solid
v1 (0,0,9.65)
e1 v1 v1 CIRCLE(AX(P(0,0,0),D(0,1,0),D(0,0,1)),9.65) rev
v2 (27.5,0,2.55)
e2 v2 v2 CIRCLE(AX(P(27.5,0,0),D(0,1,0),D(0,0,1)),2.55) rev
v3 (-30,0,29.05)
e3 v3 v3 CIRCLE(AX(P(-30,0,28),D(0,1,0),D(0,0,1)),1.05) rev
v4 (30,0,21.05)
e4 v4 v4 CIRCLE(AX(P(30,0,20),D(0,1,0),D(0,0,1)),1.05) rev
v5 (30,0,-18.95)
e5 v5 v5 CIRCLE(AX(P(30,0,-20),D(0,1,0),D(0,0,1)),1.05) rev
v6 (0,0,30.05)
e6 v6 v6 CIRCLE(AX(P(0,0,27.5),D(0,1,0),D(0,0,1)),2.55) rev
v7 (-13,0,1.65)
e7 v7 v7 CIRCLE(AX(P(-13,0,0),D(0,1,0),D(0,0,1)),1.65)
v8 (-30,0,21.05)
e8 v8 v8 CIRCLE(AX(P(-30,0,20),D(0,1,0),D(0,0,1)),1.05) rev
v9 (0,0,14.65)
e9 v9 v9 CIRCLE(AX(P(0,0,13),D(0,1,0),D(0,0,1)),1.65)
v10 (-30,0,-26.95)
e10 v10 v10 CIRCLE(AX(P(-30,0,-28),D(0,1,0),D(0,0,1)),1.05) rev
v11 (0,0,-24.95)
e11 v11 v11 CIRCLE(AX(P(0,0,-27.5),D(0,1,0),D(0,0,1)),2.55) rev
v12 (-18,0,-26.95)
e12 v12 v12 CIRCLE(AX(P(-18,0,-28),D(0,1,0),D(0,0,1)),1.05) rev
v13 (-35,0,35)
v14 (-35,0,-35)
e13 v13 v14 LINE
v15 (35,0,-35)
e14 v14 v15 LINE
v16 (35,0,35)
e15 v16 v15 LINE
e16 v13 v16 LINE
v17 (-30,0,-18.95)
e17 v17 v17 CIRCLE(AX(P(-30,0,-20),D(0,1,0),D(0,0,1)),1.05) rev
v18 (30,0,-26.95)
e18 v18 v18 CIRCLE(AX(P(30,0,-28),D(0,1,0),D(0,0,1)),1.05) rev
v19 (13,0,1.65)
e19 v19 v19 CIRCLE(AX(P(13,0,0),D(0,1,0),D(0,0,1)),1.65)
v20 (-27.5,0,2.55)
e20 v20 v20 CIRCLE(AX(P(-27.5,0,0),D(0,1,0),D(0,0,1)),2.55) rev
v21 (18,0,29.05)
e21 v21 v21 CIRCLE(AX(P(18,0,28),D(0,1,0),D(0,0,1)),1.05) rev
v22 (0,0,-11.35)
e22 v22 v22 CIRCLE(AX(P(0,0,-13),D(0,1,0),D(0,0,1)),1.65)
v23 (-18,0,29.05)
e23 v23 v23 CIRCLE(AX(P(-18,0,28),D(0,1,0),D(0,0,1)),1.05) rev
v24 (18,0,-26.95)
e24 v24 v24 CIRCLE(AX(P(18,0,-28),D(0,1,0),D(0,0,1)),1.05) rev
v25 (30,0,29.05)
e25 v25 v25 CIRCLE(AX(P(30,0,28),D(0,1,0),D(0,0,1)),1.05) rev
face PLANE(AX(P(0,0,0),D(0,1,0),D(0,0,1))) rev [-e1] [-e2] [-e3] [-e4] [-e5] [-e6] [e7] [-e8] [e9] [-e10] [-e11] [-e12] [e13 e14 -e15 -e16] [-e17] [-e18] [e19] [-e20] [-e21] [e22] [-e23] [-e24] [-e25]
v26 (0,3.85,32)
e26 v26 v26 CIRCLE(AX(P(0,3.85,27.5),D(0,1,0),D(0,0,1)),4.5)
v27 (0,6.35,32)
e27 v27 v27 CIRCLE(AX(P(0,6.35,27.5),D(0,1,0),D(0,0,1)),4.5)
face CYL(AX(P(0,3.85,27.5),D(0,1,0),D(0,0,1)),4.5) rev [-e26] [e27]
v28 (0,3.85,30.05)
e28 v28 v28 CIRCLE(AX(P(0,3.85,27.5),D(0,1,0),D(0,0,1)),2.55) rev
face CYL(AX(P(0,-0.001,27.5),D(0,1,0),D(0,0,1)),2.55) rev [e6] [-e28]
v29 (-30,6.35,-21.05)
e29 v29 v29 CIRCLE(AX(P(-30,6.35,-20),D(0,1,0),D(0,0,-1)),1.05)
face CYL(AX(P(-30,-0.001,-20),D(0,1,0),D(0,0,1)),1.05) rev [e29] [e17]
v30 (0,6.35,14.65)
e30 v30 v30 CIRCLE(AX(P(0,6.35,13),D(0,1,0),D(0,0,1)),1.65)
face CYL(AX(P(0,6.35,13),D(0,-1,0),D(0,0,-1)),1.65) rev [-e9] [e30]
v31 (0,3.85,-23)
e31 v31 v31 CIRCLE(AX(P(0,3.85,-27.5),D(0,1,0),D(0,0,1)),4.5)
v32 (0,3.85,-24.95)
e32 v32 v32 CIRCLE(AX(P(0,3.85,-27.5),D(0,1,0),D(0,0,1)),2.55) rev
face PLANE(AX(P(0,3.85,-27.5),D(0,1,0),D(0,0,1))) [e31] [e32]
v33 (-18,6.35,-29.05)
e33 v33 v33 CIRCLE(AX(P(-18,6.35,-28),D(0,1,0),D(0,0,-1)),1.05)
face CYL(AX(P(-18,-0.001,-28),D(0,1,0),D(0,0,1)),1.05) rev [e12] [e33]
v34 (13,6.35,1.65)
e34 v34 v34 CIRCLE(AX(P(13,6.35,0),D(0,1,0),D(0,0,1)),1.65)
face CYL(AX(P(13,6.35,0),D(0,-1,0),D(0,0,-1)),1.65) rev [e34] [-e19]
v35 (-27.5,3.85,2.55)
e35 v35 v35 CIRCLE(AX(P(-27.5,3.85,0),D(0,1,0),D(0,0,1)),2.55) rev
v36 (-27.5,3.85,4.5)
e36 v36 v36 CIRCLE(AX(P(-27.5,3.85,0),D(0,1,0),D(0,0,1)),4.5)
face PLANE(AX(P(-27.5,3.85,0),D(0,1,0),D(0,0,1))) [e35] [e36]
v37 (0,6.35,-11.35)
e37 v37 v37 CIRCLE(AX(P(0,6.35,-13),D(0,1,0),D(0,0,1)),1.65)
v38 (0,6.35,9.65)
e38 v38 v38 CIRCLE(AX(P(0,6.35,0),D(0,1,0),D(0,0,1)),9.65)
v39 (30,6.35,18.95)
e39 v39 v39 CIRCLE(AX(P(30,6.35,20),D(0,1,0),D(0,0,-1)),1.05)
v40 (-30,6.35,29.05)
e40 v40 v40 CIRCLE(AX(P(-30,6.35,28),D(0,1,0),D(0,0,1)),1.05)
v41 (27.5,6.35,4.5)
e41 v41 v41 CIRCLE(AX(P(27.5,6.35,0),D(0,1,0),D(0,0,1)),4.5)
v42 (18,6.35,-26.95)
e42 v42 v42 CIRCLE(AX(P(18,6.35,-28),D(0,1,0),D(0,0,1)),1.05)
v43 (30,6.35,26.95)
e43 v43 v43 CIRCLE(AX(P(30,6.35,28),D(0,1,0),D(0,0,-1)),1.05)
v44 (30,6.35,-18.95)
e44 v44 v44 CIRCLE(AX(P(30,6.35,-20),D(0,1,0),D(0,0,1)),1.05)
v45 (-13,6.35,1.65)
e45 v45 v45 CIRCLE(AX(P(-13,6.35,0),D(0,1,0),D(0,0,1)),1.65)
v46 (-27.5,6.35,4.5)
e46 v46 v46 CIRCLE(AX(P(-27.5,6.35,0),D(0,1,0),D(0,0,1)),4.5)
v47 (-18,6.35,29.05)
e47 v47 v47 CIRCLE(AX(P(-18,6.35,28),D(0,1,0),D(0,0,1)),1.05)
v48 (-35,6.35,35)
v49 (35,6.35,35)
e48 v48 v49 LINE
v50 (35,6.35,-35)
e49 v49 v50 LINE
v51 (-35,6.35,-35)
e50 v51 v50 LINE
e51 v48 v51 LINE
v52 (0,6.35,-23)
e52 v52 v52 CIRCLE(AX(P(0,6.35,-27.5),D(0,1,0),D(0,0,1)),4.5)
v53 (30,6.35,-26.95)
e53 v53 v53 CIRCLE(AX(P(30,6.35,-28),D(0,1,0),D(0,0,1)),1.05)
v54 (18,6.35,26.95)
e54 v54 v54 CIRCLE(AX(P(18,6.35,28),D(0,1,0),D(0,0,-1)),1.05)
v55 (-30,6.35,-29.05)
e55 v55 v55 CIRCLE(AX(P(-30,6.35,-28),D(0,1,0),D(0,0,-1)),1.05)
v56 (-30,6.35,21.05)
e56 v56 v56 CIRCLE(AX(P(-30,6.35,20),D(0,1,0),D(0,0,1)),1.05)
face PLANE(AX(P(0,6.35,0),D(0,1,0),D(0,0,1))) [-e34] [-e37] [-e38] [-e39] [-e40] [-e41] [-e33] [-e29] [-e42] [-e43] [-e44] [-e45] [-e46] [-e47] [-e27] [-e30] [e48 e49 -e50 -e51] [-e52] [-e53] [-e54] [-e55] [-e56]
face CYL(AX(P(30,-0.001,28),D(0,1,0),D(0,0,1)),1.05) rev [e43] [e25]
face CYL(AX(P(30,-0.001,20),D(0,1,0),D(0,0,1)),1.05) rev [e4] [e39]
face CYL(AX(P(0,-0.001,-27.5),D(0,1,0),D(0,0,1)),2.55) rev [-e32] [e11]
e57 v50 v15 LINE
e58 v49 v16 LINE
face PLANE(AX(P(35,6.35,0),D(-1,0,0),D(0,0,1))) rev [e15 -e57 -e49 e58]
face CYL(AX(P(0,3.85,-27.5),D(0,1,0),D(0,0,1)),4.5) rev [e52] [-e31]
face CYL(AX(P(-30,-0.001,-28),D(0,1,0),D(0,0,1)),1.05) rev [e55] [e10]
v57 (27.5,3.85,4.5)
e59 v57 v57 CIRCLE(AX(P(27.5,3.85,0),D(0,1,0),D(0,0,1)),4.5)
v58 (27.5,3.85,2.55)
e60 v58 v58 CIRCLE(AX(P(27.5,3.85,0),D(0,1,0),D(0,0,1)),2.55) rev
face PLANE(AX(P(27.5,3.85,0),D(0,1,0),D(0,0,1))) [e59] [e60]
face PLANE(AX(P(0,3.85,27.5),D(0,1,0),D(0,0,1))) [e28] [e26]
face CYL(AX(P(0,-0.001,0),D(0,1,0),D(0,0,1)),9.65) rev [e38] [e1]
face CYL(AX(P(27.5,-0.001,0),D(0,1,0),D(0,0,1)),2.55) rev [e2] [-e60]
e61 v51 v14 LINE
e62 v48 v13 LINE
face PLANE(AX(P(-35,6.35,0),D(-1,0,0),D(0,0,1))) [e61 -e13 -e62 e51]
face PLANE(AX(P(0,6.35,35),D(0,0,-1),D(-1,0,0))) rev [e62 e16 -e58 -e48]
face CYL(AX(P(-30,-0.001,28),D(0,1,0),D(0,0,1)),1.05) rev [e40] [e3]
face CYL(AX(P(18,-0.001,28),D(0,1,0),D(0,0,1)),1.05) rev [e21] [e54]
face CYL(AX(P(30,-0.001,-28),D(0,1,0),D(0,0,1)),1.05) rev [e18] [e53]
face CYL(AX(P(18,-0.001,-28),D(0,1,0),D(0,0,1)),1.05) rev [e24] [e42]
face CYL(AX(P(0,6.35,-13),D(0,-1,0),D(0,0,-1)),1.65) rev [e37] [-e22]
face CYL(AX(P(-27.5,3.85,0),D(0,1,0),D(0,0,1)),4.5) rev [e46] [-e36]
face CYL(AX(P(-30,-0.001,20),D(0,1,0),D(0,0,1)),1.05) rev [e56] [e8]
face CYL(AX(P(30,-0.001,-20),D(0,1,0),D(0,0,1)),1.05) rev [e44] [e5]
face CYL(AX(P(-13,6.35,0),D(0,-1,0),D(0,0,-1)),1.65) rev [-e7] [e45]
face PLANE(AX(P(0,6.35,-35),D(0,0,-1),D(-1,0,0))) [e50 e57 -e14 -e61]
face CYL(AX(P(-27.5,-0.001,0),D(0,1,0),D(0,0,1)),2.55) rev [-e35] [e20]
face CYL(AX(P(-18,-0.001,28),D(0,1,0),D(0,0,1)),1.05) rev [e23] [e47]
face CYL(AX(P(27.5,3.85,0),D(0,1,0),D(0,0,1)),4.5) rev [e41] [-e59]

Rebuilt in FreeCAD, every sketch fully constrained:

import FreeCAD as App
import Part
import Sketcher
Q = App.Units.Quantity

doc = App.newDocument("Part")
body = doc.addObject("PartDesign::Body", "Body")

sketch1 = body.newObject("Sketcher::SketchObject", "Sketch")
sketch1.AttachmentSupport = (doc.getObject("XZ_Plane"), [""])
sketch1.MapMode = "FlatFace"
sketch1.addGeometry(Part.LineSegment(App.Vector(-35, -35, 0), App.Vector(-35, 35, 0)), False)
sketch1.addGeometry(Part.LineSegment(App.Vector(-35, 35, 0), App.Vector(35, 35, 0)), False)
sketch1.addGeometry(Part.LineSegment(App.Vector(35, 35, 0), App.Vector(35, -35, 0)), False)
sketch1.addGeometry(Part.LineSegment(App.Vector(35, -35, 0), App.Vector(-35, -35, 0)), False)
sketch1.addGeometry(Part.Circle(App.Vector(0, 13, 0), App.Vector(0, 0, 1), 1.6), False)
sketch1.addGeometry(Part.Circle(App.Vector(-13, 0, 0), App.Vector(0, 0, 1), 1.6), False)
sketch1.addGeometry(Part.Circle(App.Vector(13, 0, 0), App.Vector(0, 0, 1), 1.6), False)
sketch1.addGeometry(Part.Circle(App.Vector(0, -13, 0), App.Vector(0, 0, 1), 1.6), False)
sketch1.addConstraint(Sketcher.Constraint("Coincident", 0, 2, 1, 1))
sketch1.addConstraint(Sketcher.Constraint("Coincident", 1, 2, 2, 1))
sketch1.addConstraint(Sketcher.Constraint("Coincident", 2, 2, 3, 1))
sketch1.addConstraint(Sketcher.Constraint("Coincident", 3, 2, 0, 1))
sketch1.addConstraint(Sketcher.Constraint("Vertical", 0))
sketch1.addConstraint(Sketcher.Constraint("Horizontal", 1))
sketch1.addConstraint(Sketcher.Constraint("Vertical", 2))
sketch1.addConstraint(Sketcher.Constraint("Horizontal", 3))
sketch1.addConstraint(Sketcher.Constraint("Equal", 4, 5))
sketch1.addConstraint(Sketcher.Constraint("Equal", 5, 6))
sketch1.addConstraint(Sketcher.Constraint("Equal", 6, 7))
sketch1.addConstraint(Sketcher.Constraint("Symmetric", 5, 3, 6, 3, -1, 1))
sketch1.addConstraint(Sketcher.Constraint("Symmetric", 4, 3, 7, 3, -1, 1))
sketch1.addConstraint(Sketcher.Constraint("Symmetric", 0, 2, 2, 2, -1, 1))
sketch1.addConstraint(Sketcher.Constraint("PointOnObject", 4, 3, -2))
sketch1.addConstraint(Sketcher.Constraint("PointOnObject", 5, 3, -1))
sketch1.addConstraint(Sketcher.Constraint("Equal", 3, 0))
sketch1.addConstraint(Sketcher.Constraint("Diameter", 4, Q("3.3 mm")))
sketch1.addConstraint(Sketcher.Constraint("DistanceX", 1, 1, 1, 2, Q("70 mm")))
sketch1.addConstraint(Sketcher.Constraint("DistanceY", -1, 1, 4, 3, Q("13 mm")))
sketch1.addConstraint(Sketcher.Constraint("DistanceX", 5, 3, -1, 1, Q("13 mm")))
pad1 = body.newObject("PartDesign::Pad", "Pad")
pad1.Profile = sketch1
pad1.Length = 6.35
pad1.Reversed = True

sketch2 = body.newObject("Sketcher::SketchObject", "Sketch001")
sketch2.AttachmentSupport = (doc.getObject("XZ_Plane"), [""])
sketch2.MapMode = "FlatFace"
sketch2.AttachmentOffset = App.Placement(App.Vector(0, 0, -6.35), App.Rotation())
sketch2.addGeometry(Part.Circle(App.Vector(18, -28, 0), App.Vector(0, 0, 1), 1.1), False)
sketch2.addConstraint(Sketcher.Constraint("Diameter", 0, Q("2.1 mm")))
sketch2.addConstraint(Sketcher.Constraint("DistanceX", -1, 1, 0, 3, Q("18 mm")))
sketch2.addConstraint(Sketcher.Constraint("DistanceY", 0, 3, -1, 1, Q("28 mm")))
pocket1 = body.newObject("PartDesign::Pocket", "Pocket")
pocket1.Profile = sketch2
pocket1.Type = "UpToFirst"
pocket1.Reversed = True

sketch3 = body.newObject("Sketcher::SketchObject", "Sketch002")
sketch3.AttachmentSupport = (doc.getObject("XZ_Plane"), [""])
sketch3.MapMode = "FlatFace"
sketch3.AttachmentOffset = App.Placement(App.Vector(0, 0, -6.35), App.Rotation())
sketch3.addGeometry(Part.Circle(App.Vector(30, -28, 0), App.Vector(0, 0, 1), 1.1), False)
sketch3.addConstraint(Sketcher.Constraint("Diameter", 0, Q("2.1 mm")))
sketch3.addConstraint(Sketcher.Constraint("DistanceX", -1, 1, 0, 3, Q("30 mm")))
sketch3.addConstraint(Sketcher.Constraint("DistanceY", 0, 3, -1, 1, Q("28 mm")))
pocket2 = body.newObject("PartDesign::Pocket", "Pocket001")
pocket2.Profile = sketch3
pocket2.Type = "UpToFirst"
pocket2.Reversed = True

sketch4 = body.newObject("Sketcher::SketchObject", "Sketch003")
sketch4.AttachmentSupport = (doc.getObject("XZ_Plane"), [""])
sketch4.MapMode = "FlatFace"
sketch4.AttachmentOffset = App.Placement(App.Vector(0, 0, -6.35), App.Rotation())
sketch4.addGeometry(Part.Circle(App.Vector(30, -20, 0), App.Vector(0, 0, 1), 1.1), False)
sketch4.addConstraint(Sketcher.Constraint("Diameter", 0, Q("2.1 mm")))
sketch4.addConstraint(Sketcher.Constraint("DistanceX", -1, 1, 0, 3, Q("30 mm")))
sketch4.addConstraint(Sketcher.Constraint("DistanceY", 0, 3, -1, 1, Q("20 mm")))
pocket3 = body.newObject("PartDesign::Pocket", "Pocket002")
pocket3.Profile = sketch4
pocket3.Type = "UpToFirst"
pocket3.Reversed = True

sketch5 = body.newObject("Sketcher::SketchObject", "Sketch004")
sketch5.AttachmentSupport = (doc.getObject("XZ_Plane"), [""])
sketch5.MapMode = "FlatFace"
sketch5.AttachmentOffset = App.Placement(App.Vector(0, 0, -6.35), App.Rotation())
sketch5.addGeometry(Part.Circle(App.Vector(-30, -20, 0), App.Vector(0, 0, 1), 1.1), False)
sketch5.addConstraint(Sketcher.Constraint("Diameter", 0, Q("2.1 mm")))
sketch5.addConstraint(Sketcher.Constraint("DistanceX", 0, 3, -1, 1, Q("30 mm")))
sketch5.addConstraint(Sketcher.Constraint("DistanceY", 0, 3, -1, 1, Q("20 mm")))
pocket4 = body.newObject("PartDesign::Pocket", "Pocket003")
pocket4.Profile = sketch5
pocket4.Type = "UpToFirst"
pocket4.Reversed = True

sketch6 = body.newObject("Sketcher::SketchObject", "Sketch005")
sketch6.AttachmentSupport = (doc.getObject("XZ_Plane"), [""])
sketch6.MapMode = "FlatFace"
sketch6.AttachmentOffset = App.Placement(App.Vector(0, 0, -6.35), App.Rotation())
sketch6.addGeometry(Part.Circle(App.Vector(-30, -28, 0), App.Vector(0, 0, 1), 1.1), False)
sketch6.addConstraint(Sketcher.Constraint("Diameter", 0, Q("2.1 mm")))
sketch6.addConstraint(Sketcher.Constraint("DistanceX", 0, 3, -1, 1, Q("30 mm")))
sketch6.addConstraint(Sketcher.Constraint("DistanceY", 0, 3, -1, 1, Q("28 mm")))
pocket5 = body.newObject("PartDesign::Pocket", "Pocket004")
pocket5.Profile = sketch6
pocket5.Type = "UpToFirst"
pocket5.Reversed = True

sketch7 = body.newObject("Sketcher::SketchObject", "Sketch006")
sketch7.AttachmentSupport = (doc.getObject("XZ_Plane"), [""])
sketch7.MapMode = "FlatFace"
sketch7.AttachmentOffset = App.Placement(App.Vector(0, 0, -6.35), App.Rotation())
sketch7.addGeometry(Part.Circle(App.Vector(-18, -28, 0), App.Vector(0, 0, 1), 1.1), False)
sketch7.addConstraint(Sketcher.Constraint("Diameter", 0, Q("2.1 mm")))
sketch7.addConstraint(Sketcher.Constraint("DistanceX", 0, 3, -1, 1, Q("18 mm")))
sketch7.addConstraint(Sketcher.Constraint("DistanceY", 0, 3, -1, 1, Q("28 mm")))
pocket6 = body.newObject("PartDesign::Pocket", "Pocket005")
pocket6.Profile = sketch7
pocket6.Type = "UpToFirst"
pocket6.Reversed = True

sketch8 = body.newObject("Sketcher::SketchObject", "Sketch007")
sketch8.AttachmentSupport = (doc.getObject("XZ_Plane"), [""])
sketch8.MapMode = "FlatFace"
sketch8.AttachmentOffset = App.Placement(App.Vector(0, 0, -6.35), App.Rotation())
sketch8.addGeometry(Part.Circle(App.Vector(30, 20, 0), App.Vector(0, 0, 1), 1.1), False)
sketch8.addConstraint(Sketcher.Constraint("Diameter", 0, Q("2.1 mm")))
sketch8.addConstraint(Sketcher.Constraint("DistanceX", -1, 1, 0, 3, Q("30 mm")))
sketch8.addConstraint(Sketcher.Constraint("DistanceY", -1, 1, 0, 3, Q("20 mm")))
pocket7 = body.newObject("PartDesign::Pocket", "Pocket006")
pocket7.Profile = sketch8
pocket7.Type = "UpToFirst"
pocket7.Reversed = True

sketch9 = body.newObject("Sketcher::SketchObject", "Sketch008")
sketch9.AttachmentSupport = (doc.getObject("XZ_Plane"), [""])
sketch9.MapMode = "FlatFace"
sketch9.AttachmentOffset = App.Placement(App.Vector(0, 0, -6.35), App.Rotation())
sketch9.addGeometry(Part.Circle(App.Vector(30, 28, 0), App.Vector(0, 0, 1), 1.1), False)
sketch9.addConstraint(Sketcher.Constraint("Diameter", 0, Q("2.1 mm")))
sketch9.addConstraint(Sketcher.Constraint("DistanceX", -1, 1, 0, 3, Q("30 mm")))
sketch9.addConstraint(Sketcher.Constraint("DistanceY", -1, 1, 0, 3, Q("28 mm")))
pocket8 = body.newObject("PartDesign::Pocket", "Pocket007")
pocket8.Profile = sketch9
pocket8.Type = "UpToFirst"
pocket8.Reversed = True

sketch10 = body.newObject("Sketcher::SketchObject", "Sketch009")
sketch10.AttachmentSupport = (doc.getObject("XZ_Plane"), [""])
sketch10.MapMode = "FlatFace"
sketch10.AttachmentOffset = App.Placement(App.Vector(0, 0, -6.35), App.Rotation())
sketch10.addGeometry(Part.Circle(App.Vector(18, 28, 0), App.Vector(0, 0, 1), 1.1), False)
sketch10.addConstraint(Sketcher.Constraint("Diameter", 0, Q("2.1 mm")))
sketch10.addConstraint(Sketcher.Constraint("DistanceX", -1, 1, 0, 3, Q("18 mm")))
sketch10.addConstraint(Sketcher.Constraint("DistanceY", -1, 1, 0, 3, Q("28 mm")))
pocket9 = body.newObject("PartDesign::Pocket", "Pocket008")
pocket9.Profile = sketch10
pocket9.Type = "UpToFirst"
pocket9.Reversed = True

sketch11 = body.newObject("Sketcher::SketchObject", "Sketch010")
sketch11.AttachmentSupport = (doc.getObject("XZ_Plane"), [""])
sketch11.MapMode = "FlatFace"
sketch11.AttachmentOffset = App.Placement(App.Vector(0, 0, -6.35), App.Rotation())
sketch11.addGeometry(Part.Circle(App.Vector(-18, 28, 0), App.Vector(0, 0, 1), 1.1), False)
sketch11.addConstraint(Sketcher.Constraint("Diameter", 0, Q("2.1 mm")))
sketch11.addConstraint(Sketcher.Constraint("DistanceX", 0, 3, -1, 1, Q("18 mm")))
sketch11.addConstraint(Sketcher.Constraint("DistanceY", -1, 1, 0, 3, Q("28 mm")))
pocket10 = body.newObject("PartDesign::Pocket", "Pocket009")
pocket10.Profile = sketch11
pocket10.Type = "UpToFirst"
pocket10.Reversed = True

sketch12 = body.newObject("Sketcher::SketchObject", "Sketch011")
sketch12.AttachmentSupport = (doc.getObject("XZ_Plane"), [""])
sketch12.MapMode = "FlatFace"
sketch12.AttachmentOffset = App.Placement(App.Vector(0, 0, -6.35), App.Rotation())
sketch12.addGeometry(Part.Circle(App.Vector(-30, 20, 0), App.Vector(0, 0, 1), 1.1), False)
sketch12.addConstraint(Sketcher.Constraint("Diameter", 0, Q("2.1 mm")))
sketch12.addConstraint(Sketcher.Constraint("DistanceX", 0, 3, -1, 1, Q("30 mm")))
sketch12.addConstraint(Sketcher.Constraint("DistanceY", -1, 1, 0, 3, Q("20 mm")))
pocket11 = body.newObject("PartDesign::Pocket", "Pocket010")
pocket11.Profile = sketch12
pocket11.Type = "UpToFirst"
pocket11.Reversed = True

sketch13 = body.newObject("Sketcher::SketchObject", "Sketch012")
sketch13.AttachmentSupport = (doc.getObject("XZ_Plane"), [""])
sketch13.MapMode = "FlatFace"
sketch13.AttachmentOffset = App.Placement(App.Vector(0, 0, -6.35), App.Rotation())
sketch13.addGeometry(Part.Circle(App.Vector(-30, 28, 0), App.Vector(0, 0, 1), 1.1), False)
sketch13.addConstraint(Sketcher.Constraint("Diameter", 0, Q("2.1 mm")))
sketch13.addConstraint(Sketcher.Constraint("DistanceX", 0, 3, -1, 1, Q("30 mm")))
sketch13.addConstraint(Sketcher.Constraint("DistanceY", -1, 1, 0, 3, Q("28 mm")))
pocket12 = body.newObject("PartDesign::Pocket", "Pocket011")
pocket12.Profile = sketch13
pocket12.Type = "UpToFirst"
pocket12.Reversed = True

sketch14 = body.newObject("Sketcher::SketchObject", "Sketch013")
sketch14.AttachmentSupport = (doc.getObject("XZ_Plane"), [""])
sketch14.MapMode = "FlatFace"
sketch14.AttachmentOffset = App.Placement(App.Vector(0, 0, -6.35), App.Rotation())
sketch14.addGeometry(Part.Circle(App.Vector(0, 0, 0), App.Vector(0, 0, 1), 10), False)
sketch14.addConstraint(Sketcher.Constraint("Coincident", 0, 3, -1, 1))
sketch14.addConstraint(Sketcher.Constraint("Diameter", 0, Q("19.3 mm")))
pocket13 = body.newObject("PartDesign::Pocket", "Pocket012")
pocket13.Profile = sketch14
pocket13.Type = "UpToFirst"
pocket13.Reversed = True

sketch15 = body.newObject("Sketcher::SketchObject", "Sketch014")
sketch15.AttachmentSupport = (doc.getObject("XZ_Plane"), [""])
sketch15.MapMode = "FlatFace"
sketch15.AttachmentOffset = App.Placement(App.Vector(0, 0, -6.35), App.Rotation())
sketch15.addGeometry(Part.Circle(App.Vector(0, -27.5, 0), App.Vector(0, 0, 1), 2.5), False)
sketch15.addConstraint(Sketcher.Constraint("PointOnObject", 0, 3, -2))
sketch15.addConstraint(Sketcher.Constraint("Diameter", 0, Q("5.1 mm")))
sketch15.addConstraint(Sketcher.Constraint("DistanceY", 0, 3, -1, 1, Q("27.5 mm")))
pocket14 = body.newObject("PartDesign::Pocket", "Pocket013")
pocket14.Profile = sketch15
pocket14.Type = "UpToFirst"
pocket14.Reversed = True

sketch16 = body.newObject("Sketcher::SketchObject", "Sketch015")
sketch16.AttachmentSupport = (doc.getObject("XZ_Plane"), [""])
sketch16.MapMode = "FlatFace"
sketch16.AttachmentOffset = App.Placement(App.Vector(0, 0, -6.35), App.Rotation())
sketch16.addGeometry(Part.Circle(App.Vector(27.5, 0, 0), App.Vector(0, 0, 1), 2.5), False)
sketch16.addConstraint(Sketcher.Constraint("PointOnObject", 0, 3, -1))
sketch16.addConstraint(Sketcher.Constraint("Diameter", 0, Q("5.1 mm")))
sketch16.addConstraint(Sketcher.Constraint("DistanceX", -1, 1, 0, 3, Q("27.5 mm")))
pocket15 = body.newObject("PartDesign::Pocket", "Pocket014")
pocket15.Profile = sketch16
pocket15.Type = "UpToFirst"
pocket15.Reversed = True

sketch17 = body.newObject("Sketcher::SketchObject", "Sketch016")
sketch17.AttachmentSupport = (doc.getObject("XZ_Plane"), [""])
sketch17.MapMode = "FlatFace"
sketch17.AttachmentOffset = App.Placement(App.Vector(0, 0, -6.35), App.Rotation())
sketch17.addGeometry(Part.Circle(App.Vector(0, 27.5, 0), App.Vector(0, 0, 1), 2.5), False)
sketch17.addConstraint(Sketcher.Constraint("PointOnObject", 0, 3, -2))
sketch17.addConstraint(Sketcher.Constraint("Diameter", 0, Q("5.1 mm")))
sketch17.addConstraint(Sketcher.Constraint("DistanceY", -1, 1, 0, 3, Q("27.5 mm")))
pocket16 = body.newObject("PartDesign::Pocket", "Pocket015")
pocket16.Profile = sketch17
pocket16.Type = "UpToFirst"
pocket16.Reversed = True

sketch18 = body.newObject("Sketcher::SketchObject", "Sketch017")
sketch18.AttachmentSupport = (doc.getObject("XZ_Plane"), [""])
sketch18.MapMode = "FlatFace"
sketch18.AttachmentOffset = App.Placement(App.Vector(0, 0, -6.35), App.Rotation())
sketch18.addGeometry(Part.Circle(App.Vector(-27.5, 0, 0), App.Vector(0, 0, 1), 2.5), False)
sketch18.addConstraint(Sketcher.Constraint("PointOnObject", 0, 3, -1))
sketch18.addConstraint(Sketcher.Constraint("Diameter", 0, Q("5.1 mm")))
sketch18.addConstraint(Sketcher.Constraint("DistanceX", 0, 3, -1, 1, Q("27.5 mm")))
pocket17 = body.newObject("PartDesign::Pocket", "Pocket016")
pocket17.Profile = sketch18
pocket17.Type = "UpToFirst"
pocket17.Reversed = True

sketch19 = body.newObject("Sketcher::SketchObject", "Sketch018")
sketch19.AttachmentSupport = (doc.getObject("XZ_Plane"), [""])
sketch19.MapMode = "FlatFace"
sketch19.AttachmentOffset = App.Placement(App.Vector(0, 0, -6.35), App.Rotation())
sketch19.addGeometry(Part.Circle(App.Vector(0, -27.5, 0), App.Vector(0, 0, 1), 4.5), False)
sketch19.addGeometry(Part.Circle(App.Vector(27.5, 0, 0), App.Vector(0, 0, 1), 4.5), False)
sketch19.addGeometry(Part.Circle(App.Vector(0, 27.5, 0), App.Vector(0, 0, 1), 4.5), False)
sketch19.addGeometry(Part.Circle(App.Vector(-27.5, 0, 0), App.Vector(0, 0, 1), 4.5), False)
sketch19.addConstraint(Sketcher.Constraint("Equal", 0, 1))
sketch19.addConstraint(Sketcher.Constraint("Equal", 1, 2))
sketch19.addConstraint(Sketcher.Constraint("Equal", 2, 3))
sketch19.addConstraint(Sketcher.Constraint("Symmetric", 0, 3, 2, 3, -1, 1))
sketch19.addConstraint(Sketcher.Constraint("Symmetric", 1, 3, 3, 3, -1, 1))
sketch19.addConstraint(Sketcher.Constraint("PointOnObject", 0, 3, -2))
sketch19.addConstraint(Sketcher.Constraint("PointOnObject", 1, 3, -1))
sketch19.addConstraint(Sketcher.Constraint("Diameter", 0, Q("9 mm")))
sketch19.addConstraint(Sketcher.Constraint("DistanceY", 0, 3, 2, 3, Q("55 mm")))
sketch19.addConstraint(Sketcher.Constraint("DistanceX", 3, 3, 1, 3, Q("55 mm")))
pocket18 = body.newObject("PartDesign::Pocket", "Pocket017")
pocket18.Profile = sketch19
pocket18.Length = 2.5
pocket18.Reversed = True

doc.recompute()
